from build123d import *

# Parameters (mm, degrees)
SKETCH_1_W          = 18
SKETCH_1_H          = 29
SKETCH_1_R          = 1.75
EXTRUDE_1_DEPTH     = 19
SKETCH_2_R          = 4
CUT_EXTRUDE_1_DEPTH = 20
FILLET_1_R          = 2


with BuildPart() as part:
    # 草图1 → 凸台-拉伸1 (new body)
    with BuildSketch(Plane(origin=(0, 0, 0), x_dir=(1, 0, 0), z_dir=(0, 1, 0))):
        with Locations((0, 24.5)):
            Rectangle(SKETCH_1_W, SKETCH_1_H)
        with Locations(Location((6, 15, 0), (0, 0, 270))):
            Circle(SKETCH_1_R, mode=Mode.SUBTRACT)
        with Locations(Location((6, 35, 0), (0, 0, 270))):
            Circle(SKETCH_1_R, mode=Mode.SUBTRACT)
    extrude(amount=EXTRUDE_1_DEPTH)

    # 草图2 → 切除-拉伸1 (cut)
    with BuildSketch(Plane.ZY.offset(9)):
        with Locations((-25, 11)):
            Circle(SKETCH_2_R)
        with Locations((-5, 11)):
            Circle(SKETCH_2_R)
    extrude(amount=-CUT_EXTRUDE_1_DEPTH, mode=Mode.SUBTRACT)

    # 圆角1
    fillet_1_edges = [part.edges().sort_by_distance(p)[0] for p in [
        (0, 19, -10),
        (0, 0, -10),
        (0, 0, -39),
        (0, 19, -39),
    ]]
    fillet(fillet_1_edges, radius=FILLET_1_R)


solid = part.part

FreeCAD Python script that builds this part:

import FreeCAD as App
import Part
import Sketcher
from FreeCAD import Vector


def edges_at(feature, points):
    """Names of the edges that pass closest to the given points."""
    edges = feature.Shape.Edges
    near = lambda p: min(range(len(edges)), key=lambda i: edges[i].distToShape(Part.Vertex(*p))[0])
    return sorted({f"Edge{near(p) + 1}" for p in points})


def add_polygon(sketch, points):
    """Adds a closed chain of lines whose ends are joined by coincident constraints."""
    first, n = sketch.GeometryCount, len(points)
    for a, b in zip(points, points[1:] + points[:1]):
        sketch.addGeometry(Part.LineSegment(App.Vector(*a, 0), App.Vector(*b, 0)), False)
    for i in range(n):
        sketch.addConstraint(Sketcher.Constraint("Coincident", first + i, 2, first + (i + 1) % n, 1))

doc = App.newDocument("Part")
body = doc.addObject("PartDesign::Body", "Body")

# Sketch on XZ plane
sketch1 = body.newObject("Sketcher::SketchObject", "Sketch")
sketch1.AttachmentSupport = (doc.getObject("XZ_Plane"), [""])
sketch1.MapMode = "FlatFace"
add_polygon(sketch1, [(-9, -39), (-9, -10), (9, -10), (9, -39)])  # lines 0-3
sketch1.addGeometry(Part.Circle(Vector(6, -15, 0), Vector(0, 0, 1), 1.75), False)  # 4
sketch1.addGeometry(Part.Circle(Vector(6, -35, 0), Vector(0, 0, 1), 1.75), False)  # 5
sketch1.addConstraint([
    Sketcher.Constraint("Vertical", 0),
    Sketcher.Constraint("Horizontal", 1),
    Sketcher.Constraint("Vertical", 2),
    Sketcher.Constraint("Horizontal", 3),
    Sketcher.Constraint("Equal", 4, 5),
    Sketcher.Constraint("Vertical", 4, 3, 5, 3),
    Sketcher.Constraint("Diameter", 4, 3.5),
    Sketcher.Constraint("DistanceX", 1, 1, 1, 2, 18.0),
    Sketcher.Constraint("DistanceY", 0, 1, 0, 2, 29.0),
    Sketcher.Constraint("DistanceX", -1, 1, 4, 3, 6.0),
    Sketcher.Constraint("DistanceY", 4, 3, -1, 1, 15.0),
    Sketcher.Constraint("DistanceY", 5, 3, -1, 1, 35.0),
    Sketcher.Constraint("DistanceX", 0, 2, -1, 1, 9.0),
    Sketcher.Constraint("DistanceY", 0, 2, -1, 1, 10.0),
])
pad1 = body.newObject("PartDesign::Pad", "Pad")
pad1.Profile = sketch1
pad1.Length = 19
pad1.Reversed = True

# Sketch on YZ plane
sketch2 = body.newObject("Sketcher::SketchObject", "Sketch001")
sketch2.AttachmentSupport = (doc.getObject("YZ_Plane"), [""])
sketch2.MapMode = "FlatFace"
sketch2.AttachmentOffset = App.Placement(Vector(0, 0, -9), App.Rotation())
sketch2.addGeometry([
    Part.Circle(Vector(11, -25, 0), Vector(0, 0, 1), 4),
    Part.Circle(Vector(11, -5, 0), Vector(0, 0, 1), 4),
], False)
sketch2.addConstraint([
    Sketcher.Constraint("Equal", 0, 1),
    Sketcher.Constraint("Vertical", 0, 3, 1, 3),
    Sketcher.Constraint("Diameter", 0, 8.0),
    Sketcher.Constraint("DistanceX", -1, 1, 0, 3, 11.0),
    Sketcher.Constraint("DistanceY", 0, 3, -1, 1, 25.0),
    Sketcher.Constraint("DistanceY", 1, 3, -1, 1, 5.0),
])
pocket1 = body.newObject("PartDesign::Pocket", "Pocket")
pocket1.Profile = sketch2
pocket1.Length = 20
pocket1.Reversed = True
doc.recompute()

fillet = body.newObject("PartDesign::Fillet", "Fillet")
fillet.Base = (pocket1, edges_at(pocket1, [
    (0, 19, -10),
    (0, 0, -10),
    (0, 0, -39),
    (0, 19, -39),
]))
fillet.Radius = 2

doc.recompute()
